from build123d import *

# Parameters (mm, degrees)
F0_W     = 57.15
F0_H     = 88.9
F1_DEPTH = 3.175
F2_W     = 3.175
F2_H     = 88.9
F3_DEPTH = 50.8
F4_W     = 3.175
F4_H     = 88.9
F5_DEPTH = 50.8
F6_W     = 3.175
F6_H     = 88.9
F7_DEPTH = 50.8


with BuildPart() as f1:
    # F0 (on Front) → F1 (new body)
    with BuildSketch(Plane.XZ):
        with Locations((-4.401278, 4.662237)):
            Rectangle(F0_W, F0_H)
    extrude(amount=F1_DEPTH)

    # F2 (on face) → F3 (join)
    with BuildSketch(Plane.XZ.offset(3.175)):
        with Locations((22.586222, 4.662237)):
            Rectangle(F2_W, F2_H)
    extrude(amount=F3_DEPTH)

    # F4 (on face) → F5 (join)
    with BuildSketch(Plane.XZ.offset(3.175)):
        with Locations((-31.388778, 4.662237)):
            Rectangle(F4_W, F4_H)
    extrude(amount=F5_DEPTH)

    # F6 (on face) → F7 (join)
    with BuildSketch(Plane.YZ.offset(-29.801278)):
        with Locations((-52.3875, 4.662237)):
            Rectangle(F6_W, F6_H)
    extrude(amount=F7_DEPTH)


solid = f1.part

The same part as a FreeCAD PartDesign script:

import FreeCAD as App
import Part
import Sketcher
from FreeCAD import Vector
Q = App.Units.Quantity

doc = App.newDocument("Part")
body = doc.addObject("PartDesign::Body", "Body")

# Sketch on XZ plane
sketch1 = body.newObject("Sketcher::SketchObject", "Sketch")
sketch1.AttachmentSupport = (doc.getObject("XZ_Plane"), [""])
sketch1.MapMode = "FlatFace"
sketch1.addGeometry(Part.LineSegment(Vector(-33, 49, 0), Vector(-33, -40, 0)), False)
sketch1.addGeometry(Part.LineSegment(Vector(-33, -40, 0), Vector(24, -40, 0)), False)
sketch1.addGeometry(Part.LineSegment(Vector(24, -40, 0), Vector(24, 49, 0)), False)
sketch1.addGeometry(Part.LineSegment(Vector(24, 49, 0), Vector(-33, 49, 0)), False)
sketch1.addConstraint(Sketcher.Constraint("Coincident", 0, 2, 1, 1))
sketch1.addConstraint(Sketcher.Constraint("Coincident", 1, 2, 2, 1))
sketch1.addConstraint(Sketcher.Constraint("Coincident", 2, 2, 3, 1))
sketch1.addConstraint(Sketcher.Constraint("Coincident", 3, 2, 0, 1))
sketch1.addConstraint(Sketcher.Constraint("Vertical", 0))
sketch1.addConstraint(Sketcher.Constraint("Horizontal", 1))
sketch1.addConstraint(Sketcher.Constraint("Vertical", 2))
sketch1.addConstraint(Sketcher.Constraint("Horizontal", 3))
sketch1.addConstraint(Sketcher.Constraint("DistanceY", 0, 2, 0, 1, Q("3.5 in")))
sketch1.addConstraint(Sketcher.Constraint("DistanceX", 1, 1, 1, 2, Q("2.25 in")))
sketch1.addConstraint(Sketcher.Constraint("DistanceX", 0, 2, -1, 1, 32.976278))
sketch1.addConstraint(Sketcher.Constraint("DistanceY", 0, 2, -1, 1, 39.787763))
pad1 = body.newObject("PartDesign::Pad", "Pad")
pad1.Profile = sketch1
pad1.Length = Q("0.125 in")

# Sketch on XZ plane
sketch2 = body.newObject("Sketcher::SketchObject", "Sketch001")
sketch2.AttachmentSupport = (doc.getObject("XZ_Plane"), [""])
sketch2.MapMode = "FlatFace"
sketch2.AttachmentOffset = App.Placement(Vector(0, 0, 0.125 * 25.4), App.Rotation())
sketch2.addGeometry(Part.LineSegment(Vector(21, 49.1, 0), Vector(21, -39.8, 0)), False)
sketch2.addGeometry(Part.LineSegment(Vector(21, -39.8, 0), Vector(24.2, -39.8, 0)), False)
sketch2.addGeometry(Part.LineSegment(Vector(24.2, -39.8, 0), Vector(24.2, 49.1, 0)), False)
sketch2.addGeometry(Part.LineSegment(Vector(24.2, 49.1, 0), Vector(21, 49.1, 0)), False)
sketch2.addConstraint(Sketcher.Constraint("Coincident", 0, 2, 1, 1))
sketch2.addConstraint(Sketcher.Constraint("Coincident", 1, 2, 2, 1))
sketch2.addConstraint(Sketcher.Constraint("Coincident", 2, 2, 3, 1))
sketch2.addConstraint(Sketcher.Constraint("Coincident", 3, 2, 0, 1))
sketch2.addConstraint(Sketcher.Constraint("Vertical", 0))
sketch2.addConstraint(Sketcher.Constraint("Horizontal", 1))
sketch2.addConstraint(Sketcher.Constraint("Vertical", 2))
sketch2.addConstraint(Sketcher.Constraint("Horizontal", 3))
sketch2.addConstraint(Sketcher.Constraint("DistanceY", 0, 2, 0, 1, Q("3.5 in")))
sketch2.addConstraint(Sketcher.Constraint("DistanceX", 1, 1, 1, 2, Q("0.125 in")))
sketch2.addConstraint(Sketcher.Constraint("DistanceX", -1, 1, 0, 2, 20.998722))
sketch2.addConstraint(Sketcher.Constraint("DistanceY", 0, 2, -1, 1, 39.787763))
pad2 = body.newObject("PartDesign::Pad", "Pad001")
pad2.Profile = sketch2
pad2.Length = Q("2 in")

# Sketch on XZ plane
sketch3 = body.newObject("Sketcher::SketchObject", "Sketch002")
sketch3.AttachmentSupport = (doc.getObject("XZ_Plane"), [""])
sketch3.MapMode = "FlatFace"
sketch3.AttachmentOffset = App.Placement(Vector(0, 0, 0.125 * 25.4), App.Rotation())
sketch3.addGeometry(Part.LineSegment(Vector(-33, 49.1, 0), Vector(-33, -39.8, 0)), False)
sketch3.addGeometry(Part.LineSegment(Vector(-33, -39.8, 0), Vector(-29.8, -39.8, 0)), False)
sketch3.addGeometry(Part.LineSegment(Vector(-29.8, -39.8, 0), Vector(-29.8, 49.1, 0)), False)
sketch3.addGeometry(Part.LineSegment(Vector(-29.8, 49.1, 0), Vector(-33, 49.1, 0)), False)
sketch3.addConstraint(Sketcher.Constraint("Coincident", 0, 2, 1, 1))
sketch3.addConstraint(Sketcher.Constraint("Coincident", 1, 2, 2, 1))
sketch3.addConstraint(Sketcher.Constraint("Coincident", 2, 2, 3, 1))
sketch3.addConstraint(Sketcher.Constraint("Coincident", 3, 2, 0, 1))
sketch3.addConstraint(Sketcher.Constraint("Vertical", 0))
sketch3.addConstraint(Sketcher.Constraint("Horizontal", 1))
sketch3.addConstraint(Sketcher.Constraint("Vertical", 2))
sketch3.addConstraint(Sketcher.Constraint("Horizontal", 3))
sketch3.addConstraint(Sketcher.Constraint("DistanceY", 0, 2, 0, 1, Q("3.5 in")))
sketch3.addConstraint(Sketcher.Constraint("DistanceX", 1, 1, 1, 2, Q("0.125 in")))
sketch3.addConstraint(Sketcher.Constraint("DistanceX", 1, 2, -1, 1, 29.801278))
sketch3.addConstraint(Sketcher.Constraint("DistanceY", 0, 2, -1, 1, 39.787763))
pad3 = body.newObject("PartDesign::Pad", "Pad002")
pad3.Profile = sketch3
pad3.Length = Q("2 in")

# Sketch on YZ plane
sketch4 = body.newObject("Sketcher::SketchObject", "Sketch003")
sketch4.AttachmentSupport = (doc.getObject("YZ_Plane"), [""])
sketch4.MapMode = "FlatFace"
sketch4.AttachmentOffset = App.Placement(Vector(0, 0, -29.801278), App.Rotation())
sketch4.addGeometry(Part.LineSegment(Vector(-54, 49.1, 0), Vector(-54, -39.8, 0)), False)
sketch4.addGeometry(Part.LineSegment(Vector(-54, -39.8, 0), Vector(-50.8, -39.8, 0)), False)
sketch4.addGeometry(Part.LineSegment(Vector(-50.8, -39.8, 0), Vector(-50.8, 49.1, 0)), False)
sketch4.addGeometry(Part.LineSegment(Vector(-50.8, 49.1, 0), Vector(-54, 49.1, 0)), False)
sketch4.addConstraint(Sketcher.Constraint("Coincident", 0, 2, 1, 1))
sketch4.addConstraint(Sketcher.Constraint("Coincident", 1, 2, 2, 1))
sketch4.addConstraint(Sketcher.Constraint("Coincident", 2, 2, 3, 1))
sketch4.addConstraint(Sketcher.Constraint("Coincident", 3, 2, 0, 1))
sketch4.addConstraint(Sketcher.Constraint("Vertical", 0))
sketch4.addConstraint(Sketcher.Constraint("Horizontal", 1))
sketch4.addConstraint(Sketcher.Constraint("Vertical", 2))
sketch4.addConstraint(Sketcher.Constraint("Horizontal", 3))
sketch4.addConstraint(Sketcher.Constraint("DistanceY", 0, 2, 0, 1, Q("3.5 in")))
sketch4.addConstraint(Sketcher.Constraint("DistanceX", 1, 2, -1, 1, Q("2 in")))
sketch4.addConstraint(Sketcher.Constraint("DistanceX", 1, 1, 1, 2, Q("0.125 in")))
sketch4.addConstraint(Sketcher.Constraint("DistanceY", 0, 2, -1, 1, 39.787763))
pad4 = body.newObject("PartDesign::Pad", "Pad003")
pad4.Profile = sketch4
pad4.Length = Q("2 in")

doc.recompute()
